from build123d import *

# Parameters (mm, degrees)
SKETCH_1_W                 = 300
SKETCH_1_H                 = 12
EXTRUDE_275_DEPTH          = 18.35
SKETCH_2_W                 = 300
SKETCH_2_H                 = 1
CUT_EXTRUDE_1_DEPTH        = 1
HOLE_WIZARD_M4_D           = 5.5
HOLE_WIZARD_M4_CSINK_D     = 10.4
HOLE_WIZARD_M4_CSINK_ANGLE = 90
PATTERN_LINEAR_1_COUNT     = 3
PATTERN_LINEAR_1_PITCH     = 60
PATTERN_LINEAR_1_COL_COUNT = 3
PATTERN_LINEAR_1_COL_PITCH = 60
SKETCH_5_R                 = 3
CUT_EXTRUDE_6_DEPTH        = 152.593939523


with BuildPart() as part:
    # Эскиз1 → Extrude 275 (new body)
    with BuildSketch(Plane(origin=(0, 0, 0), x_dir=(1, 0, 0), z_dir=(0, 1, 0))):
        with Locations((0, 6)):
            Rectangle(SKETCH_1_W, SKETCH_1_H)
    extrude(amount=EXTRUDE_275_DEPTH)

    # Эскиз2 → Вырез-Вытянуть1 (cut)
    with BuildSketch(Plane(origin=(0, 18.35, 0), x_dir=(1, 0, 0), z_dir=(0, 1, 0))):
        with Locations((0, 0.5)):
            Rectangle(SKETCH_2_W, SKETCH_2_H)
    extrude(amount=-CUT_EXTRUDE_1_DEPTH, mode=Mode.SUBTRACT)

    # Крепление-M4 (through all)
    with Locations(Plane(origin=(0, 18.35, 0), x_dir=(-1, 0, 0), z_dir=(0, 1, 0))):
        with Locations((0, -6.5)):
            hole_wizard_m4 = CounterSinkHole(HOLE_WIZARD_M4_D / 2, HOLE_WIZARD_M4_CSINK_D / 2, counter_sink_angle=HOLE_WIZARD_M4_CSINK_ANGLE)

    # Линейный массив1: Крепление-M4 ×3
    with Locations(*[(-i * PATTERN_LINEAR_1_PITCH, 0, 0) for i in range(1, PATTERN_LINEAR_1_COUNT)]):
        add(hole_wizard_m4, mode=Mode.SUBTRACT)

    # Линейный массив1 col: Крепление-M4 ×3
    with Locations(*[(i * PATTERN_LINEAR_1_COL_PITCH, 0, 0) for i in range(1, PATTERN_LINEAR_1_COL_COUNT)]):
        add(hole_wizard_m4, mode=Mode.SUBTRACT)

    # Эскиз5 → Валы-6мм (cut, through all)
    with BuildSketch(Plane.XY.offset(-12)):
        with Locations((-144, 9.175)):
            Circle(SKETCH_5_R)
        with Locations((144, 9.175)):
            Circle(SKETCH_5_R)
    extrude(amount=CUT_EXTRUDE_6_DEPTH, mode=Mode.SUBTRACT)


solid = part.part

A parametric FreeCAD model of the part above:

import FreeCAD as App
import Part
import Sketcher
from FreeCAD import Vector
Q = App.Units.Quantity


def add_polygon(sketch, points):
    """Adds a closed chain of lines whose ends are joined by coincident constraints."""
    first, n = sketch.GeometryCount, len(points)
    for a, b in zip(points, points[1:] + points[:1]):
        sketch.addGeometry(Part.LineSegment(App.Vector(*a, 0), App.Vector(*b, 0)), False)
    for i in range(n):
        sketch.addConstraint(Sketcher.Constraint("Coincident", first + i, 2, first + (i + 1) % n, 1))

doc = App.newDocument("Part")
body = doc.addObject("PartDesign::Body", "Body")

# Sketch on XZ plane
sketch1 = doc.addObject("Sketcher::SketchObject", "Sketch")
body.addObject(sketch1)
sketch1.AttachmentSupport = (doc.XZ_Plane, [""])
sketch1.MapMode = "FlatFace"
add_polygon(sketch1, [(-150, -12), (-150, 0), (150, 0), (150, -12)])  # lines 0-3
sketch1.addConstraint(Sketcher.Constraint("Vertical", 0))
sketch1.addConstraint(Sketcher.Constraint("Horizontal", 1))
sketch1.addConstraint(Sketcher.Constraint("Vertical", 2))
sketch1.addConstraint(Sketcher.Constraint("Horizontal", 3))
sketch1.addConstraint(Sketcher.Constraint("Symmetric", 0, 2, 1, 2, -1, 1))
sketch1.addConstraint(Sketcher.Constraint("DistanceX", 1, 1, 1, 2, Q("300 mm")))
sketch1.addConstraint(Sketcher.Constraint("DistanceY", 0, 1, 0, 2, Q("12 mm")))
pad1 = doc.addObject("PartDesign::Pad", "Pad")
body.addObject(pad1)
pad1.Profile = sketch1
pad1.Length = 18.35
pad1.Reversed = True

# Sketch on XZ plane
sketch2 = doc.addObject("Sketcher::SketchObject", "Sketch001")
body.addObject(sketch2)
sketch2.AttachmentSupport = (doc.XZ_Plane, [""])
sketch2.MapMode = "FlatFace"
sketch2.AttachmentOffset = App.Placement(Vector(0, 0, -18.35), App.Rotation())
add_polygon(sketch2, [(-150, -1), (-150, 0), (150, 0), (150, -1)])  # lines 0-3
sketch2.addConstraint(Sketcher.Constraint("Vertical", 0))
sketch2.addConstraint(Sketcher.Constraint("Horizontal", 1))
sketch2.addConstraint(Sketcher.Constraint("Vertical", 2))
sketch2.addConstraint(Sketcher.Constraint("Horizontal", 3))
sketch2.addConstraint(Sketcher.Constraint("Symmetric", 0, 2, 1, 2, -1, 1))
sketch2.addConstraint(Sketcher.Constraint("DistanceX", 1, 1, 1, 2, Q("300 mm")))
sketch2.addConstraint(Sketcher.Constraint("DistanceY", 0, 1, 0, 2, Q("1 mm")))
pocket1 = doc.addObject("PartDesign::Pocket", "Pocket")
body.addObject(pocket1)
pocket1.Profile = sketch2
pocket1.Length = 1
pocket1.Reversed = True

# Sketch on XZ plane
sketch3 = doc.addObject("Sketcher::SketchObject", "Sketch002")
body.addObject(sketch3)
sketch3.AttachmentSupport = (doc.XZ_Plane, [""])
sketch3.MapMode = "FlatFace"
sketch3.AttachmentOffset = App.Placement(Vector(0, 0, -18.35), App.Rotation())
sketch3.addGeometry(Part.Circle(Vector(0, -6.5, 0), Vector(0, 0, 1), 2.8), False)
sketch3.addConstraint(Sketcher.Constraint("PointOnObject", 0, 3, -2))
sketch3.addConstraint(Sketcher.Constraint("Diameter", 0, Q("5.5 mm")))
sketch3.addConstraint(Sketcher.Constraint("DistanceY", 0, 3, -1, 1, Q("6.5 mm")))
doc.recompute()
hole = doc.addObject("PartDesign::Hole", "Hole")
body.addObject(hole)
hole.Profile = sketch3
hole.ThreadType = "None"
hole.Diameter = 5.5
hole.DepthType = "ThroughAll"
hole.HoleCutType = "Countersink"
hole.HoleCutDiameter = 10.4
hole.HoleCutCountersinkAngle = 90
hole.Reversed = True
doc.recompute()

linearpattern = doc.addObject("PartDesign::LinearPattern", "LinearPattern")
body.addObject(linearpattern)
linearpattern.Originals = [hole]
linearpattern.Direction = (doc.X_Axis, [""])
linearpattern.Mode = "offset"
linearpattern.Offset = 60
linearpattern.Occurrences = 3
linearpattern.Reversed = True
body.Tip = linearpattern
doc.recompute()

linearpattern2 = doc.addObject("PartDesign::LinearPattern", "LinearPattern001")
body.addObject(linearpattern2)
linearpattern2.Originals = [hole]
linearpattern2.Direction = (doc.X_Axis, [""])
linearpattern2.Mode = "offset"
linearpattern2.Offset = 60
linearpattern2.Occurrences = 3
body.Tip = linearpattern2

# Sketch on XY plane
sketch4 = doc.addObject("Sketcher::SketchObject", "Sketch003")
body.addObject(sketch4)
sketch4.AttachmentSupport = (doc.XY_Plane, [""])
sketch4.MapMode = "FlatFace"
sketch4.AttachmentOffset = App.Placement(Vector(0, 0, -12), App.Rotation())
sketch4.addGeometry(Part.Circle(Vector(-144, 9.2, 0), Vector(0, 0, 1), 3), False)
sketch4.addGeometry(Part.Circle(Vector(144, 9.2, 0), Vector(0, 0, 1), 3), False)
sketch4.addConstraint(Sketcher.Constraint("Equal", 0, 1))
sketch4.addConstraint(Sketcher.Constraint("Symmetric", 0, 3, 1, 3, -2))
sketch4.addConstraint(Sketcher.Constraint("Diameter", 0, Q("6 mm")))
sketch4.addConstraint(Sketcher.Constraint("DistanceX", 0, 3, -1, 1, Q("144 mm")))
sketch4.addConstraint(Sketcher.Constraint("DistanceY", -1, 1, 0, 3, Q("9.175 mm")))
pocket2 = doc.addObject("PartDesign::Pocket", "Pocket001")
body.addObject(pocket2)
pocket2.Profile = sketch4
pocket2.Type = "ThroughAll"
pocket2.Reversed = True

doc.recompute()
